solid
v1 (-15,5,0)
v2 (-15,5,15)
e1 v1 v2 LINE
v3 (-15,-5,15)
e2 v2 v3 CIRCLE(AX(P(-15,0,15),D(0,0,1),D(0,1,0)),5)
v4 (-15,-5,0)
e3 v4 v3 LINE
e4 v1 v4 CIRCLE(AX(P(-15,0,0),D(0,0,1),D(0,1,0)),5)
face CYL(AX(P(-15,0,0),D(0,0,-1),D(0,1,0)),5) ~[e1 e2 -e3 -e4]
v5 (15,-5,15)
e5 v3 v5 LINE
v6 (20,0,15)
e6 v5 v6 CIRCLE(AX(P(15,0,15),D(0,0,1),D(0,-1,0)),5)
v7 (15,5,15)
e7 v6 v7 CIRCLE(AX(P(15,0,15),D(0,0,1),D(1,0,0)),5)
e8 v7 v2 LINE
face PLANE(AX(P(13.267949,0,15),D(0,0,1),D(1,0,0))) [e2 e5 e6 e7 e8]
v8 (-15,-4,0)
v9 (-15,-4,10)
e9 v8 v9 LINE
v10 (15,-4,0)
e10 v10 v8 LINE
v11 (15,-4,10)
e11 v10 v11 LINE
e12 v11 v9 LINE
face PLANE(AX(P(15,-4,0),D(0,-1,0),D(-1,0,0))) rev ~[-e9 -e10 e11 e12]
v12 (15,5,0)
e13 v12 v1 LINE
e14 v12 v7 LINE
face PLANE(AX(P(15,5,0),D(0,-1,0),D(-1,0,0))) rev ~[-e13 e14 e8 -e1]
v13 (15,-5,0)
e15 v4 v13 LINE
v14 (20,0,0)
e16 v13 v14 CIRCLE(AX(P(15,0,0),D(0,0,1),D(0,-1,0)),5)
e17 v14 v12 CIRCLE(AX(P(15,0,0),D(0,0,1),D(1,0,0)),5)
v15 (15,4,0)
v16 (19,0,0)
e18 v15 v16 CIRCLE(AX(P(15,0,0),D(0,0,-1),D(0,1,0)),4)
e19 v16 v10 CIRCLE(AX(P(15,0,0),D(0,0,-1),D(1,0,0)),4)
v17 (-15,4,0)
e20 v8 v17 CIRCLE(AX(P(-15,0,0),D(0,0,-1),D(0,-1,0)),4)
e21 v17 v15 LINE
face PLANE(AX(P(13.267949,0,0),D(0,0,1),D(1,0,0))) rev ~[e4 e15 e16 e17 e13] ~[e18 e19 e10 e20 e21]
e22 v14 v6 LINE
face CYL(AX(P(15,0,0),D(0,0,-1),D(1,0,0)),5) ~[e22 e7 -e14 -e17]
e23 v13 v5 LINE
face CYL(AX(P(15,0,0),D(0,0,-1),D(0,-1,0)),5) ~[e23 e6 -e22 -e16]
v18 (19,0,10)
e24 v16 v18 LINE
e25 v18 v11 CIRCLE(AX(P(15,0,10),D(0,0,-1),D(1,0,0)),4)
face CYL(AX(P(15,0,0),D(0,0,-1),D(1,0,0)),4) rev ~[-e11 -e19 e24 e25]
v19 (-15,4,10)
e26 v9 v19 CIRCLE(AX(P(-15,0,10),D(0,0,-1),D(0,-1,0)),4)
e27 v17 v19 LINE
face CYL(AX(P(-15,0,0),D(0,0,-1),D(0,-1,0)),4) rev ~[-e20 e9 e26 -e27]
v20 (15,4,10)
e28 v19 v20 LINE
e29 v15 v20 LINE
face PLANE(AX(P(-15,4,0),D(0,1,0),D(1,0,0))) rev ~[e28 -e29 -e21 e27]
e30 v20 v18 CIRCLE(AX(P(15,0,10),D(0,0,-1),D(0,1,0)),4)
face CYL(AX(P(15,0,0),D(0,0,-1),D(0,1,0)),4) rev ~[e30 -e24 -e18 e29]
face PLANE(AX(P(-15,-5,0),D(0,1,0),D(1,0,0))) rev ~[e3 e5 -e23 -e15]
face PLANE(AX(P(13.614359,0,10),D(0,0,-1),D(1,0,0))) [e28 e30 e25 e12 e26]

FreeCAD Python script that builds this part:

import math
import FreeCAD as App
import Part
import Sketcher

doc = App.newDocument("Part")
params = doc.addObject("Spreadsheet::Sheet", "Params")
for row, (alias, value) in enumerate([
    ("sketch1_radius", "5 mm"),
    ("sketch1_width", "30 mm"),
    ("pad1_length", "15 mm"),
    ("sketch2_radius", "4 mm"),
    ("sketch2_width", "30 mm"),
    ("pocket1_length", "10 mm"),
], start=1):
    params.set(f"A{row}", alias)
    params.set(f"B{row}", "=" + value)
    params.setAlias(f"B{row}", alias)

body = doc.addObject("PartDesign::Body", "Body")

# Sketch on XY plane
sketch1 = doc.addObject("Sketcher::SketchObject", "Sketch")
body.addObject(sketch1)
sketch1.AttachmentSupport = (doc.XY_Plane, [""])
sketch1.MapMode = "FlatFace"
sketch1.addGeometry([
    Part.LineSegment(App.Vector(15, 5, 0), App.Vector(-15, 5, 0)),  # 0
    Part.ArcOfCircle(Part.Circle(App.Vector(-15, 0, 0), App.Vector(0, 0, 1), 5), math.radians(90), math.radians(270)),  # 1
    Part.LineSegment(App.Vector(-15, -5, 0), App.Vector(15, -5, 0)),  # 2
    Part.ArcOfCircle(Part.Circle(App.Vector(15, 0, 0), App.Vector(0, 0, 1), 5), math.radians(-90), math.radians(0)),  # 3
    Part.ArcOfCircle(Part.Circle(App.Vector(15, 0, 0), App.Vector(0, 0, 1), 5), math.radians(0), math.radians(90)),  # 4
], False)
sketch1.addConstraint([
    Sketcher.Constraint("Tangent", 0, 2, 1, 1),
    Sketcher.Constraint("Tangent", 1, 2, 2, 1),
    Sketcher.Constraint("Tangent", 2, 2, 3, 1),
    Sketcher.Constraint("Tangent", 3, 2, 4, 1),
    Sketcher.Constraint("Tangent", 4, 2, 0, 1),
    Sketcher.Constraint("Horizontal", 0),
    Sketcher.Constraint("Horizontal", 2),
    Sketcher.Constraint("Equal", 1, 3),
    Sketcher.Constraint("Symmetric", 1, 3, 3, 3, -1, 1),
    Sketcher.Constraint("PointOnObject", 3, 2, -1),
    Sketcher.Constraint("Radius", 1, 5.0),
    Sketcher.Constraint("DistanceX", 0, 2, 0, 1, 30.0),
])
sketch1.setExpression("Constraints[10]", "Params.sketch1_radius")
sketch1.setExpression("Constraints[11]", "Params.sketch1_width")
pad1 = doc.addObject("PartDesign::Pad", "Pad")
body.addObject(pad1)
pad1.Profile = sketch1
pad1.setExpression("Length", "Params.pad1_length")

# Sketch on XY plane
sketch2 = doc.addObject("Sketcher::SketchObject", "Sketch001")
body.addObject(sketch2)
sketch2.AttachmentSupport = (doc.XY_Plane, [""])
sketch2.MapMode = "FlatFace"
sketch2.addGeometry([
    Part.LineSegment(App.Vector(15, -4, 0), App.Vector(-15, -4, 0)),  # 0
    Part.ArcOfCircle(Part.Circle(App.Vector(-15, 0, 0), App.Vector(0, 0, 1), 4), math.radians(90), math.radians(270)),  # 1
    Part.LineSegment(App.Vector(-15, 4, 0), App.Vector(15, 4, 0)),  # 2
    Part.ArcOfCircle(Part.Circle(App.Vector(15, 0, 0), App.Vector(0, 0, 1), 4), math.radians(0), math.radians(90)),  # 3
    Part.ArcOfCircle(Part.Circle(App.Vector(15, 0, 0), App.Vector(0, 0, 1), 4), math.radians(-90), math.radians(0)),  # 4
], False)
sketch2.addConstraint([
    Sketcher.Constraint("Tangent", 0, 2, 1, 2),
    Sketcher.Constraint("Tangent", 1, 1, 2, 1),
    Sketcher.Constraint("Tangent", 2, 2, 3, 2),
    Sketcher.Constraint("Tangent", 3, 1, 4, 2),
    Sketcher.Constraint("Tangent", 4, 1, 0, 1),
    Sketcher.Constraint("Horizontal", 0),
    Sketcher.Constraint("Horizontal", 2),
    Sketcher.Constraint("Equal", 1, 3),
    Sketcher.Constraint("Symmetric", 1, 3, 3, 3, -1, 1),
    Sketcher.Constraint("PointOnObject", 3, 1, -1),
    Sketcher.Constraint("Radius", 1, 4.0),
    Sketcher.Constraint("DistanceX", 0, 2, 0, 1, 30.0),
])
sketch2.setExpression("Constraints[10]", "Params.sketch2_radius")
sketch2.setExpression("Constraints[11]", "Params.sketch2_width")
pocket1 = doc.addObject("PartDesign::Pocket", "Pocket")
body.addObject(pocket1)
pocket1.Profile = sketch2
pocket1.setExpression("Length", "Params.pocket1_length")
pocket1.Reversed = True

doc.recompute()
